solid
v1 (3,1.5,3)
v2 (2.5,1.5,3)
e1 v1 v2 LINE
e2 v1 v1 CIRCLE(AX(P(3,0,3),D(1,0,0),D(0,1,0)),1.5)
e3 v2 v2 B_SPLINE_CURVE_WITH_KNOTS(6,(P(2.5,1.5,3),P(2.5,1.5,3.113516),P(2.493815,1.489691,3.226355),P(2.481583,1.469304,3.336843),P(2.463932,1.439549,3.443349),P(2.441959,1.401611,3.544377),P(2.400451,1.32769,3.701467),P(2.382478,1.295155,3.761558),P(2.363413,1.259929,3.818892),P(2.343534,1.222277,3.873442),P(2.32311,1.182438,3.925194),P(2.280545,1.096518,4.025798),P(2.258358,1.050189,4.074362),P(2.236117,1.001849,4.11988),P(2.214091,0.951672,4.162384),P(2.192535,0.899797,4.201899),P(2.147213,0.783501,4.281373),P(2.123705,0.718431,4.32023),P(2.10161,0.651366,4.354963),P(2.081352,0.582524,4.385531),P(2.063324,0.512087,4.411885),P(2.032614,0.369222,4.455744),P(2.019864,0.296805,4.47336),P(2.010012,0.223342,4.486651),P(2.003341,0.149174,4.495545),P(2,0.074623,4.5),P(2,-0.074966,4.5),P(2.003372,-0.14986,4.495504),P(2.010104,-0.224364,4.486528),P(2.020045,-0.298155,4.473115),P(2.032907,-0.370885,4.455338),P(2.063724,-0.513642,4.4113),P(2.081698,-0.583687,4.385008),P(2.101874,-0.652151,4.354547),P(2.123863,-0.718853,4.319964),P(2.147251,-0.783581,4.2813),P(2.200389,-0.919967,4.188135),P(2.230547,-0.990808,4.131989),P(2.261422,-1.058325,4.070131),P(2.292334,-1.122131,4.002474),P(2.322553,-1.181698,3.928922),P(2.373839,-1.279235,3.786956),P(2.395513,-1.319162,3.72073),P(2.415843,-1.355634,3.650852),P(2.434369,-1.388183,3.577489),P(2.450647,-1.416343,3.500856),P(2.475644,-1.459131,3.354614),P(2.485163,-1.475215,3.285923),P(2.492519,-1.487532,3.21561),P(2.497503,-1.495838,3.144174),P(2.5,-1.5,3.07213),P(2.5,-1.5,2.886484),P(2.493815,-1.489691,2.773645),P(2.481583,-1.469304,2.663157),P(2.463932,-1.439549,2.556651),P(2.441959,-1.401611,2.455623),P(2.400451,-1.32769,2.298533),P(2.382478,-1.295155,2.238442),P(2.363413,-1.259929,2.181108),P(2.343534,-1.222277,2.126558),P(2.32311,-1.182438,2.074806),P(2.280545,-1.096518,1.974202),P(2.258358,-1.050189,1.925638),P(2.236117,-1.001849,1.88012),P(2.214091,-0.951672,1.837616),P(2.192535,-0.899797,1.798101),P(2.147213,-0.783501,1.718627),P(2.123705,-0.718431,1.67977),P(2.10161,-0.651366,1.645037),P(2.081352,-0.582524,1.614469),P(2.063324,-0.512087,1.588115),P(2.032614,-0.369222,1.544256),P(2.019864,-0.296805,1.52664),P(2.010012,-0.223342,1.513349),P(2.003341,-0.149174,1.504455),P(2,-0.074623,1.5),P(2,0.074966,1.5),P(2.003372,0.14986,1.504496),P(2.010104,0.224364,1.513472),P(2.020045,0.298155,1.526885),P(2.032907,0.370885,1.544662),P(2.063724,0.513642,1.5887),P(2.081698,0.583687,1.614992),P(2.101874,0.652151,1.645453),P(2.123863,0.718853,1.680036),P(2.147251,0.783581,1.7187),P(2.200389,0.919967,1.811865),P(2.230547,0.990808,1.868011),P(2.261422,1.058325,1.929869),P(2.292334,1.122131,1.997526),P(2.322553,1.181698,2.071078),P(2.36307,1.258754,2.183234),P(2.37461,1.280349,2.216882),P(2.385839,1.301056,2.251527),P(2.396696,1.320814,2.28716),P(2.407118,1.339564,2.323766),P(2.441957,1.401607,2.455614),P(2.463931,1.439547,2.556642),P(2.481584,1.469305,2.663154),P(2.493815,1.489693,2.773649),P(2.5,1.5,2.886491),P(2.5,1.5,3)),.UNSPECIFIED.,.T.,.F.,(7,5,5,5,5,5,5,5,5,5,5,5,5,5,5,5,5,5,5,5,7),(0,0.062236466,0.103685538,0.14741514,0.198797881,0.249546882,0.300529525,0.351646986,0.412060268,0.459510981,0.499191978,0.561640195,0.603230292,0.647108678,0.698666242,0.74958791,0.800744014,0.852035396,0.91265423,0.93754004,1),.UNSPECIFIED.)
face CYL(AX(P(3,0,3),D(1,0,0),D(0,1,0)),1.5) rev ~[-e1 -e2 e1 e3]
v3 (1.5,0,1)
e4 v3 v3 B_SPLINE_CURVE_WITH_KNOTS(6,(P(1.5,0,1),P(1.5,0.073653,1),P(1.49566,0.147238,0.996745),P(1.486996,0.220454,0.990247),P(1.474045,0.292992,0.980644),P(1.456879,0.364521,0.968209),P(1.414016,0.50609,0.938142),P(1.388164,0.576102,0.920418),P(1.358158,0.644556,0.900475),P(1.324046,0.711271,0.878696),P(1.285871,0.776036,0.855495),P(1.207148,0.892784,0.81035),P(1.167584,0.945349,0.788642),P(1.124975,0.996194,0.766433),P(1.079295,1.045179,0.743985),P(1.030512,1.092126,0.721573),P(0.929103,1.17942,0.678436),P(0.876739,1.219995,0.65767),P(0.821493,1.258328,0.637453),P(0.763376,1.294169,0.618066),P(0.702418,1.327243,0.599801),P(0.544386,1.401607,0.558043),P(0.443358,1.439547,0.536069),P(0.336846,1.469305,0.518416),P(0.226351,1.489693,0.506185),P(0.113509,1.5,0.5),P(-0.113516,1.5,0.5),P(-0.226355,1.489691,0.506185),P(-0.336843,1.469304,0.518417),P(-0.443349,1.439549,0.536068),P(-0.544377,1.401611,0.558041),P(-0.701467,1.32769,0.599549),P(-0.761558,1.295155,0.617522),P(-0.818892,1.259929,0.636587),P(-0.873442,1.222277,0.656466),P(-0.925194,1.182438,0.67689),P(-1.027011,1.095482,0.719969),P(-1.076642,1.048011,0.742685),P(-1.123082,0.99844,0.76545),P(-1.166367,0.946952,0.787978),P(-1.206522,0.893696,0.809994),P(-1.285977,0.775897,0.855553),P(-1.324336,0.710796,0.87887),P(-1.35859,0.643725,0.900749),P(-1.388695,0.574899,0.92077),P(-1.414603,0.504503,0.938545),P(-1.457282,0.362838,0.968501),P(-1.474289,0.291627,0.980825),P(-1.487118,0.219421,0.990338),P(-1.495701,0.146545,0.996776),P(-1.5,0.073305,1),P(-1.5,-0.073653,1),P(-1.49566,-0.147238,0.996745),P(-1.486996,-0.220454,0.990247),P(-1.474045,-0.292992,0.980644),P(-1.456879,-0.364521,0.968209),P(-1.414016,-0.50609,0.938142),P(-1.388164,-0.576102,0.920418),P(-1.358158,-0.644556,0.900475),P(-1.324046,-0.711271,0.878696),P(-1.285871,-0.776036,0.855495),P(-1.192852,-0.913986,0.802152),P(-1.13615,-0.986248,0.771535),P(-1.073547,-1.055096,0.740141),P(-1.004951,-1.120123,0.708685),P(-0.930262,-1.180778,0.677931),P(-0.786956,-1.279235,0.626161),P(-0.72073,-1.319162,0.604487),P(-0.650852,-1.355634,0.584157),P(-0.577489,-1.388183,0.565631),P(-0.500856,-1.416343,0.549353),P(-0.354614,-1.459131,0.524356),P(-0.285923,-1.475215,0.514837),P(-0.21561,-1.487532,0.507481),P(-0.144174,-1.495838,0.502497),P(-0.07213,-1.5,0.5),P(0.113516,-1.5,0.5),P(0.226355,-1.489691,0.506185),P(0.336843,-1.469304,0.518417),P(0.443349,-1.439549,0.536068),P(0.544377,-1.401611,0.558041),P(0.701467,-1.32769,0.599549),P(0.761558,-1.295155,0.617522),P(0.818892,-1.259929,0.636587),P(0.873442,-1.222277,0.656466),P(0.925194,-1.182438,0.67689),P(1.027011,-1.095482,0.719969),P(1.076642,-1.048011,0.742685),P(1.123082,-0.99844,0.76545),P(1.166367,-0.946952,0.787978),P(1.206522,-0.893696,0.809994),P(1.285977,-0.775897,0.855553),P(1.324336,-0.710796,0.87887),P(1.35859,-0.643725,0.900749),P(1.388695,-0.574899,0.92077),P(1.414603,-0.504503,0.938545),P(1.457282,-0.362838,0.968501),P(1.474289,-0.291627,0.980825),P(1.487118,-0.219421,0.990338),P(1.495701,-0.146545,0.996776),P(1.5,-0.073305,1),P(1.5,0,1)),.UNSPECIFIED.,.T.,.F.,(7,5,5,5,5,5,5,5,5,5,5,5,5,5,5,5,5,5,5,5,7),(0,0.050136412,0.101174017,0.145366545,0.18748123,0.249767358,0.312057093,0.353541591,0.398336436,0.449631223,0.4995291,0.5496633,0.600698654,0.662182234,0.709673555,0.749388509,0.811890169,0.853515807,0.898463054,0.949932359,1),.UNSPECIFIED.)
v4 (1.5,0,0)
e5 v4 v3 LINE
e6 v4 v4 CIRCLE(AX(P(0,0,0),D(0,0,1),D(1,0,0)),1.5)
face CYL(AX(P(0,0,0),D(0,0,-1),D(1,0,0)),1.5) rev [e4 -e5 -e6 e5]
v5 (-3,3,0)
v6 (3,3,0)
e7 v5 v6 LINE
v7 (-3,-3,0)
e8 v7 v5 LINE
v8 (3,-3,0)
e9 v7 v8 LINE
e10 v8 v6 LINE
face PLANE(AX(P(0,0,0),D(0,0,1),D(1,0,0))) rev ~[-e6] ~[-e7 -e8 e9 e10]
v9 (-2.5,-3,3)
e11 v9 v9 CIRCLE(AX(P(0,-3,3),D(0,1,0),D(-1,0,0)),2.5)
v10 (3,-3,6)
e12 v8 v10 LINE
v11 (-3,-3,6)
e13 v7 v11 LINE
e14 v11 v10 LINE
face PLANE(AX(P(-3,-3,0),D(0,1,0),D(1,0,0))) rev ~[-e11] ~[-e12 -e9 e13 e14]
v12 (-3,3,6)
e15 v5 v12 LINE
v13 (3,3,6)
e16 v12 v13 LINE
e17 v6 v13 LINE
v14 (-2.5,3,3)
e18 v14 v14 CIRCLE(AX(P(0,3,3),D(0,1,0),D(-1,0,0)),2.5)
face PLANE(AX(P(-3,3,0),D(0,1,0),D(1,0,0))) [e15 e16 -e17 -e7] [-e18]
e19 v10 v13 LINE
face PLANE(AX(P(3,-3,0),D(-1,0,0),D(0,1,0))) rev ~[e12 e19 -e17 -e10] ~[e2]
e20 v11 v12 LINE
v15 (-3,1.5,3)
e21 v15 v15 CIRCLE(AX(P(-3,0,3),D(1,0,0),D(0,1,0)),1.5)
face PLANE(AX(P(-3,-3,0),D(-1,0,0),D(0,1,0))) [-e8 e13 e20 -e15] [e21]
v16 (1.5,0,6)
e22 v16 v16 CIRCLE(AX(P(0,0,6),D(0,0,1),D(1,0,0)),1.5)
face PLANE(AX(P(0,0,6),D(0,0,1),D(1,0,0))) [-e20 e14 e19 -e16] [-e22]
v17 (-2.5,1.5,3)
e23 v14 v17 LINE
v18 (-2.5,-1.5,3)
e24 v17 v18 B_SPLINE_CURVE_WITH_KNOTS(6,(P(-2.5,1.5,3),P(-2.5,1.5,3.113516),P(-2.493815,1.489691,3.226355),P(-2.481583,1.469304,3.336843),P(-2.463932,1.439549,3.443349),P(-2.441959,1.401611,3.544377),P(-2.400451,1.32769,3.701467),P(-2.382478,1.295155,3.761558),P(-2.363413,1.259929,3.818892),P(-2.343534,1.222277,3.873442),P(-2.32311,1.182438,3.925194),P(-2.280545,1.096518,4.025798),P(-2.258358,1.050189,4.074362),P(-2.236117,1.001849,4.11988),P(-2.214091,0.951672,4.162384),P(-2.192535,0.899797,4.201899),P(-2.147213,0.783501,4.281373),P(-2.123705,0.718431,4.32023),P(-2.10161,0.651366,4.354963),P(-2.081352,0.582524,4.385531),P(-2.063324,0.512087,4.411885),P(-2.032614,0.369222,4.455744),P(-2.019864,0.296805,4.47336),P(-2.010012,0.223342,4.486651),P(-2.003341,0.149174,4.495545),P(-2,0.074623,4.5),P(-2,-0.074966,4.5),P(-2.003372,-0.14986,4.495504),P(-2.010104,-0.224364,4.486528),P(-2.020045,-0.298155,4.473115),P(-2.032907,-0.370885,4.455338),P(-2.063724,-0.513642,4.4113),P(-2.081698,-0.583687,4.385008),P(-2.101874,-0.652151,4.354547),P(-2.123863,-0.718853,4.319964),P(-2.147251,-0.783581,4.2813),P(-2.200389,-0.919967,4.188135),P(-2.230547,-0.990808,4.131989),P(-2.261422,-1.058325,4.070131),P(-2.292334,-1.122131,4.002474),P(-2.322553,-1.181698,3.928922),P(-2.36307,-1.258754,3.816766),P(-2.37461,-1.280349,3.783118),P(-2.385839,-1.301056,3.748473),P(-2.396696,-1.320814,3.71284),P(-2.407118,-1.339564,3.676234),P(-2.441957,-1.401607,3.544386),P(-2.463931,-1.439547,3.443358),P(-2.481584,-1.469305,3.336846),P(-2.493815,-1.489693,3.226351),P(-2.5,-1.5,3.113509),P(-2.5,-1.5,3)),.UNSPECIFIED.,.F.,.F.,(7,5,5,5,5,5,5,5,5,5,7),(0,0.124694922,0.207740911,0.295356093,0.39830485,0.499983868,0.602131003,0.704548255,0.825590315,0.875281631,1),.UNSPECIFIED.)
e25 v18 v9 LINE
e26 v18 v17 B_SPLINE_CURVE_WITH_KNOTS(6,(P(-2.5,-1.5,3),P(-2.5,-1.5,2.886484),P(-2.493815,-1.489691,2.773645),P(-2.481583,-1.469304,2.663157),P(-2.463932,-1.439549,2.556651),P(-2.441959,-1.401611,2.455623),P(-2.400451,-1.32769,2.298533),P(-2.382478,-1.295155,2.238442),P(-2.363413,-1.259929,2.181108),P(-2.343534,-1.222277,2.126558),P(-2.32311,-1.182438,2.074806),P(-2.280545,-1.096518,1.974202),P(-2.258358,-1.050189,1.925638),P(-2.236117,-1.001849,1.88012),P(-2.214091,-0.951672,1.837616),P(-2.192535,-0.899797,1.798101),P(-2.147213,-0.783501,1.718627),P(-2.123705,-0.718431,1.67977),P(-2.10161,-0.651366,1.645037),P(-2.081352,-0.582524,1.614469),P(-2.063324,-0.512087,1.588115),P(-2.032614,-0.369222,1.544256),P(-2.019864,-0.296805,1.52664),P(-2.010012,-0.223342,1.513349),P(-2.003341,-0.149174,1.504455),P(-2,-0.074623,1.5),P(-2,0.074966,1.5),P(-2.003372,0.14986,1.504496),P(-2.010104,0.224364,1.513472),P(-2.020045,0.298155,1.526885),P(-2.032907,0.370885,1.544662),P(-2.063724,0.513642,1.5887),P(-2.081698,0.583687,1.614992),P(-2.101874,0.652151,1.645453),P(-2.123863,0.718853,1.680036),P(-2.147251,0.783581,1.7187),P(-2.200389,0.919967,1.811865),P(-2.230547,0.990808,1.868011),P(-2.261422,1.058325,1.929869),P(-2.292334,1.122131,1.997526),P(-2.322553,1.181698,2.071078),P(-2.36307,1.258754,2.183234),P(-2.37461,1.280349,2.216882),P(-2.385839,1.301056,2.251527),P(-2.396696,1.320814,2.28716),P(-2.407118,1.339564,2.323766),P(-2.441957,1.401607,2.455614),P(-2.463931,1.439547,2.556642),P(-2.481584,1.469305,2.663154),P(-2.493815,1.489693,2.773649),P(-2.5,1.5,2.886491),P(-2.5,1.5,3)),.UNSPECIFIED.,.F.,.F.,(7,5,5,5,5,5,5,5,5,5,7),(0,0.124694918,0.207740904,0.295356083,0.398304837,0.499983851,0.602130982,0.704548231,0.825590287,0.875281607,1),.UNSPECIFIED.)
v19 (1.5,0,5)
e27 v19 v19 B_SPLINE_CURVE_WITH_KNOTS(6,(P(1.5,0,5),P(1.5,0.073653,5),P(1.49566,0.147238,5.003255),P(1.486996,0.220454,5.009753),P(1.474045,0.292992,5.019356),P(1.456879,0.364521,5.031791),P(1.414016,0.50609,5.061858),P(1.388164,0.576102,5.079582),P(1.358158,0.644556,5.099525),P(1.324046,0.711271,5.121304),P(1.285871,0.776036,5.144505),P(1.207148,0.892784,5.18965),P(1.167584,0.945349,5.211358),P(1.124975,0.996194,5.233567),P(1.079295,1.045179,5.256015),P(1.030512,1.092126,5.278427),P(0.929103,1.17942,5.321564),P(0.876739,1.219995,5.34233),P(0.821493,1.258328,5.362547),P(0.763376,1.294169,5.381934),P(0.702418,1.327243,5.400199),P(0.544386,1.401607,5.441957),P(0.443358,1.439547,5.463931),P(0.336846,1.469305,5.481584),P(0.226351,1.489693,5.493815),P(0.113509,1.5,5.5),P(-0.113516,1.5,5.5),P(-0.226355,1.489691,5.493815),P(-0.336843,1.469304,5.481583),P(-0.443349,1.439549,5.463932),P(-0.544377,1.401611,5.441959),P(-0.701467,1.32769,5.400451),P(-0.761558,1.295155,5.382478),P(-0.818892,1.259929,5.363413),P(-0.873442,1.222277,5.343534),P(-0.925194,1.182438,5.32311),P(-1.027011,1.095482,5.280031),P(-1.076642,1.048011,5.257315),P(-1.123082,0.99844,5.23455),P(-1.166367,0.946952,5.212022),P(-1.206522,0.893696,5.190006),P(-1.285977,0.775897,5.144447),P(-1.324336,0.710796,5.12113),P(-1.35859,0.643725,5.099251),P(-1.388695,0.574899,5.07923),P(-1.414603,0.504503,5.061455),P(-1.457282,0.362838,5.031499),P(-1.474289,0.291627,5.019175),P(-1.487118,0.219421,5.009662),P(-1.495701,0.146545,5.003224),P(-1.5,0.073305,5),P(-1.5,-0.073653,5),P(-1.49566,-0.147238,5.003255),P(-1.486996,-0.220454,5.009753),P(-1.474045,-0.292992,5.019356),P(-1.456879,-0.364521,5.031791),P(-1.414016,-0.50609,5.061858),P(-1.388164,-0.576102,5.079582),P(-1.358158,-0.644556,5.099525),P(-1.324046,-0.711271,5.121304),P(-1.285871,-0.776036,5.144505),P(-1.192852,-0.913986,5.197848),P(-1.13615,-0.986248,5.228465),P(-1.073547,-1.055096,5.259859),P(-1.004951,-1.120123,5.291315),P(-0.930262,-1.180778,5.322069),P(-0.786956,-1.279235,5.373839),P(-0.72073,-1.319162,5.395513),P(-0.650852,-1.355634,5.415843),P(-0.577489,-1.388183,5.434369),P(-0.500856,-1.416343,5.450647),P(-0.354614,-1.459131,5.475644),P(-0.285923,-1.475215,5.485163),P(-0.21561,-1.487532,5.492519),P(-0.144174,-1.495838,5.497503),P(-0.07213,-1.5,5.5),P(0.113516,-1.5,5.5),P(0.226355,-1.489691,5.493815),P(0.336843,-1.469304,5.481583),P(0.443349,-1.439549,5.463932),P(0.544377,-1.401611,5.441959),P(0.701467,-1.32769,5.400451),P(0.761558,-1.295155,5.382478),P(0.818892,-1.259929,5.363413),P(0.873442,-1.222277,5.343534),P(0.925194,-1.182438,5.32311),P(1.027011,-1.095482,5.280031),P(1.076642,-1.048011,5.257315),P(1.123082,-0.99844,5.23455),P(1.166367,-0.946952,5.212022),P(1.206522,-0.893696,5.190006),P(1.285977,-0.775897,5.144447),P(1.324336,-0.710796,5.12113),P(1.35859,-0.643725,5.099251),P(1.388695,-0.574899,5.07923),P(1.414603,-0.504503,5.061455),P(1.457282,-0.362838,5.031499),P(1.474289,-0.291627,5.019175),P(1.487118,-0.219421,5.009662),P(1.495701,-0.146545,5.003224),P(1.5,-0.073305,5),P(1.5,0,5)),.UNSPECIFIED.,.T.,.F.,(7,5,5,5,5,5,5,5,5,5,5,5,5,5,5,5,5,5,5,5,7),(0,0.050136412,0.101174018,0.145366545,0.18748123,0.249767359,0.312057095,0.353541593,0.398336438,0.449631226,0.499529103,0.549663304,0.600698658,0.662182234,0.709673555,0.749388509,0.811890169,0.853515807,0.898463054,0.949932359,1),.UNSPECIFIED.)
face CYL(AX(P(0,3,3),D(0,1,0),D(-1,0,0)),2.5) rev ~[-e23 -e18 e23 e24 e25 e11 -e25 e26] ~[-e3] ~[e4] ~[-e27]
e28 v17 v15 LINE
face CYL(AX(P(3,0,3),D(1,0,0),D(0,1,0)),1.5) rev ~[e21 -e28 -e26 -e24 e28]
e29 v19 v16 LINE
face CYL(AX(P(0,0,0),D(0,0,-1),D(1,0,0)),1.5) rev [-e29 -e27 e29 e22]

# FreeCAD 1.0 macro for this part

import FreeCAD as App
import Part
import Sketcher
from FreeCAD import Vector


def add_polygon(sketch, points):
    """Adds a closed chain of lines whose ends are joined by coincident constraints."""
    first, n = sketch.GeometryCount, len(points)
    for a, b in zip(points, points[1:] + points[:1]):
        sketch.addGeometry(Part.LineSegment(App.Vector(*a, 0), App.Vector(*b, 0)), False)
    for i in range(n):
        sketch.addConstraint(Sketcher.Constraint("Coincident", first + i, 2, first + (i + 1) % n, 1))

doc = App.newDocument("Part")
body = doc.addObject("PartDesign::Body", "Body")

# Sketch on XY plane
sketch1 = body.newObject("Sketcher::SketchObject", "Sketch")
sketch1.AttachmentSupport = (doc.getObject("XY_Plane"), [""])
sketch1.MapMode = "FlatFace"
add_polygon(sketch1, [(-3, 3), (-3, -3), (3, -3), (3, 3)])  # lines 0-3
sketch1.addGeometry(Part.Circle(Vector(0, 0, 0), Vector(0, 0, 1), 1.5), False)  # 4
sketch1.addConstraint([
    Sketcher.Constraint("Vertical", 0),
    Sketcher.Constraint("Horizontal", 1),
    Sketcher.Constraint("Vertical", 2),
    Sketcher.Constraint("Horizontal", 3),
    Sketcher.Constraint("Coincident", 4, 3, -1, 1),
    Sketcher.Constraint("Symmetric", 0, 2, 2, 2, -1, 1),
    Sketcher.Constraint("Equal", 3, 0),
    Sketcher.Constraint("Diameter", 4, 3.0),
    Sketcher.Constraint("DistanceX", 1, 1, 1, 2, 6.0),
])
pad1 = body.newObject("PartDesign::Pad", "Pad")
pad1.Profile = sketch1
pad1.Length = 6

# Sketch on YZ plane
sketch2 = body.newObject("Sketcher::SketchObject", "Sketch001")
sketch2.AttachmentSupport = (doc.getObject("YZ_Plane"), [""])
sketch2.MapMode = "FlatFace"
sketch2.AttachmentOffset = App.Placement(Vector(0, 0, 3), App.Rotation())
sketch2.addGeometry(Part.Circle(Vector(0, 3, 0), Vector(0, 0, 1), 1.5), False)
sketch2.addConstraint([
    Sketcher.Constraint("PointOnObject", 0, 3, -2),
    Sketcher.Constraint("Diameter", 0, 3.0),
    Sketcher.Constraint("DistanceY", -1, 1, 0, 3, 3.0),
])
pocket1 = body.newObject("PartDesign::Pocket", "Pocket")
pocket1.Profile = sketch2
pocket1.Length = 25

# Sketch on XZ plane
sketch3 = body.newObject("Sketcher::SketchObject", "Sketch002")
sketch3.AttachmentSupport = (doc.getObject("XZ_Plane"), [""])
sketch3.MapMode = "FlatFace"
sketch3.AttachmentOffset = App.Placement(Vector(0, 0, -3), App.Rotation())
sketch3.addGeometry(Part.Circle(Vector(0, 3, 0), Vector(0, 0, 1), 2.5), False)
sketch3.addConstraint([
    Sketcher.Constraint("PointOnObject", 0, 3, -2),
    Sketcher.Constraint("Diameter", 0, 5.0),
    Sketcher.Constraint("DistanceY", -1, 1, 0, 3, 3.0),
])
pocket2 = body.newObject("PartDesign::Pocket", "Pocket001")
pocket2.Profile = sketch3
pocket2.Length = 25
pocket2.Reversed = True

doc.recompute()
